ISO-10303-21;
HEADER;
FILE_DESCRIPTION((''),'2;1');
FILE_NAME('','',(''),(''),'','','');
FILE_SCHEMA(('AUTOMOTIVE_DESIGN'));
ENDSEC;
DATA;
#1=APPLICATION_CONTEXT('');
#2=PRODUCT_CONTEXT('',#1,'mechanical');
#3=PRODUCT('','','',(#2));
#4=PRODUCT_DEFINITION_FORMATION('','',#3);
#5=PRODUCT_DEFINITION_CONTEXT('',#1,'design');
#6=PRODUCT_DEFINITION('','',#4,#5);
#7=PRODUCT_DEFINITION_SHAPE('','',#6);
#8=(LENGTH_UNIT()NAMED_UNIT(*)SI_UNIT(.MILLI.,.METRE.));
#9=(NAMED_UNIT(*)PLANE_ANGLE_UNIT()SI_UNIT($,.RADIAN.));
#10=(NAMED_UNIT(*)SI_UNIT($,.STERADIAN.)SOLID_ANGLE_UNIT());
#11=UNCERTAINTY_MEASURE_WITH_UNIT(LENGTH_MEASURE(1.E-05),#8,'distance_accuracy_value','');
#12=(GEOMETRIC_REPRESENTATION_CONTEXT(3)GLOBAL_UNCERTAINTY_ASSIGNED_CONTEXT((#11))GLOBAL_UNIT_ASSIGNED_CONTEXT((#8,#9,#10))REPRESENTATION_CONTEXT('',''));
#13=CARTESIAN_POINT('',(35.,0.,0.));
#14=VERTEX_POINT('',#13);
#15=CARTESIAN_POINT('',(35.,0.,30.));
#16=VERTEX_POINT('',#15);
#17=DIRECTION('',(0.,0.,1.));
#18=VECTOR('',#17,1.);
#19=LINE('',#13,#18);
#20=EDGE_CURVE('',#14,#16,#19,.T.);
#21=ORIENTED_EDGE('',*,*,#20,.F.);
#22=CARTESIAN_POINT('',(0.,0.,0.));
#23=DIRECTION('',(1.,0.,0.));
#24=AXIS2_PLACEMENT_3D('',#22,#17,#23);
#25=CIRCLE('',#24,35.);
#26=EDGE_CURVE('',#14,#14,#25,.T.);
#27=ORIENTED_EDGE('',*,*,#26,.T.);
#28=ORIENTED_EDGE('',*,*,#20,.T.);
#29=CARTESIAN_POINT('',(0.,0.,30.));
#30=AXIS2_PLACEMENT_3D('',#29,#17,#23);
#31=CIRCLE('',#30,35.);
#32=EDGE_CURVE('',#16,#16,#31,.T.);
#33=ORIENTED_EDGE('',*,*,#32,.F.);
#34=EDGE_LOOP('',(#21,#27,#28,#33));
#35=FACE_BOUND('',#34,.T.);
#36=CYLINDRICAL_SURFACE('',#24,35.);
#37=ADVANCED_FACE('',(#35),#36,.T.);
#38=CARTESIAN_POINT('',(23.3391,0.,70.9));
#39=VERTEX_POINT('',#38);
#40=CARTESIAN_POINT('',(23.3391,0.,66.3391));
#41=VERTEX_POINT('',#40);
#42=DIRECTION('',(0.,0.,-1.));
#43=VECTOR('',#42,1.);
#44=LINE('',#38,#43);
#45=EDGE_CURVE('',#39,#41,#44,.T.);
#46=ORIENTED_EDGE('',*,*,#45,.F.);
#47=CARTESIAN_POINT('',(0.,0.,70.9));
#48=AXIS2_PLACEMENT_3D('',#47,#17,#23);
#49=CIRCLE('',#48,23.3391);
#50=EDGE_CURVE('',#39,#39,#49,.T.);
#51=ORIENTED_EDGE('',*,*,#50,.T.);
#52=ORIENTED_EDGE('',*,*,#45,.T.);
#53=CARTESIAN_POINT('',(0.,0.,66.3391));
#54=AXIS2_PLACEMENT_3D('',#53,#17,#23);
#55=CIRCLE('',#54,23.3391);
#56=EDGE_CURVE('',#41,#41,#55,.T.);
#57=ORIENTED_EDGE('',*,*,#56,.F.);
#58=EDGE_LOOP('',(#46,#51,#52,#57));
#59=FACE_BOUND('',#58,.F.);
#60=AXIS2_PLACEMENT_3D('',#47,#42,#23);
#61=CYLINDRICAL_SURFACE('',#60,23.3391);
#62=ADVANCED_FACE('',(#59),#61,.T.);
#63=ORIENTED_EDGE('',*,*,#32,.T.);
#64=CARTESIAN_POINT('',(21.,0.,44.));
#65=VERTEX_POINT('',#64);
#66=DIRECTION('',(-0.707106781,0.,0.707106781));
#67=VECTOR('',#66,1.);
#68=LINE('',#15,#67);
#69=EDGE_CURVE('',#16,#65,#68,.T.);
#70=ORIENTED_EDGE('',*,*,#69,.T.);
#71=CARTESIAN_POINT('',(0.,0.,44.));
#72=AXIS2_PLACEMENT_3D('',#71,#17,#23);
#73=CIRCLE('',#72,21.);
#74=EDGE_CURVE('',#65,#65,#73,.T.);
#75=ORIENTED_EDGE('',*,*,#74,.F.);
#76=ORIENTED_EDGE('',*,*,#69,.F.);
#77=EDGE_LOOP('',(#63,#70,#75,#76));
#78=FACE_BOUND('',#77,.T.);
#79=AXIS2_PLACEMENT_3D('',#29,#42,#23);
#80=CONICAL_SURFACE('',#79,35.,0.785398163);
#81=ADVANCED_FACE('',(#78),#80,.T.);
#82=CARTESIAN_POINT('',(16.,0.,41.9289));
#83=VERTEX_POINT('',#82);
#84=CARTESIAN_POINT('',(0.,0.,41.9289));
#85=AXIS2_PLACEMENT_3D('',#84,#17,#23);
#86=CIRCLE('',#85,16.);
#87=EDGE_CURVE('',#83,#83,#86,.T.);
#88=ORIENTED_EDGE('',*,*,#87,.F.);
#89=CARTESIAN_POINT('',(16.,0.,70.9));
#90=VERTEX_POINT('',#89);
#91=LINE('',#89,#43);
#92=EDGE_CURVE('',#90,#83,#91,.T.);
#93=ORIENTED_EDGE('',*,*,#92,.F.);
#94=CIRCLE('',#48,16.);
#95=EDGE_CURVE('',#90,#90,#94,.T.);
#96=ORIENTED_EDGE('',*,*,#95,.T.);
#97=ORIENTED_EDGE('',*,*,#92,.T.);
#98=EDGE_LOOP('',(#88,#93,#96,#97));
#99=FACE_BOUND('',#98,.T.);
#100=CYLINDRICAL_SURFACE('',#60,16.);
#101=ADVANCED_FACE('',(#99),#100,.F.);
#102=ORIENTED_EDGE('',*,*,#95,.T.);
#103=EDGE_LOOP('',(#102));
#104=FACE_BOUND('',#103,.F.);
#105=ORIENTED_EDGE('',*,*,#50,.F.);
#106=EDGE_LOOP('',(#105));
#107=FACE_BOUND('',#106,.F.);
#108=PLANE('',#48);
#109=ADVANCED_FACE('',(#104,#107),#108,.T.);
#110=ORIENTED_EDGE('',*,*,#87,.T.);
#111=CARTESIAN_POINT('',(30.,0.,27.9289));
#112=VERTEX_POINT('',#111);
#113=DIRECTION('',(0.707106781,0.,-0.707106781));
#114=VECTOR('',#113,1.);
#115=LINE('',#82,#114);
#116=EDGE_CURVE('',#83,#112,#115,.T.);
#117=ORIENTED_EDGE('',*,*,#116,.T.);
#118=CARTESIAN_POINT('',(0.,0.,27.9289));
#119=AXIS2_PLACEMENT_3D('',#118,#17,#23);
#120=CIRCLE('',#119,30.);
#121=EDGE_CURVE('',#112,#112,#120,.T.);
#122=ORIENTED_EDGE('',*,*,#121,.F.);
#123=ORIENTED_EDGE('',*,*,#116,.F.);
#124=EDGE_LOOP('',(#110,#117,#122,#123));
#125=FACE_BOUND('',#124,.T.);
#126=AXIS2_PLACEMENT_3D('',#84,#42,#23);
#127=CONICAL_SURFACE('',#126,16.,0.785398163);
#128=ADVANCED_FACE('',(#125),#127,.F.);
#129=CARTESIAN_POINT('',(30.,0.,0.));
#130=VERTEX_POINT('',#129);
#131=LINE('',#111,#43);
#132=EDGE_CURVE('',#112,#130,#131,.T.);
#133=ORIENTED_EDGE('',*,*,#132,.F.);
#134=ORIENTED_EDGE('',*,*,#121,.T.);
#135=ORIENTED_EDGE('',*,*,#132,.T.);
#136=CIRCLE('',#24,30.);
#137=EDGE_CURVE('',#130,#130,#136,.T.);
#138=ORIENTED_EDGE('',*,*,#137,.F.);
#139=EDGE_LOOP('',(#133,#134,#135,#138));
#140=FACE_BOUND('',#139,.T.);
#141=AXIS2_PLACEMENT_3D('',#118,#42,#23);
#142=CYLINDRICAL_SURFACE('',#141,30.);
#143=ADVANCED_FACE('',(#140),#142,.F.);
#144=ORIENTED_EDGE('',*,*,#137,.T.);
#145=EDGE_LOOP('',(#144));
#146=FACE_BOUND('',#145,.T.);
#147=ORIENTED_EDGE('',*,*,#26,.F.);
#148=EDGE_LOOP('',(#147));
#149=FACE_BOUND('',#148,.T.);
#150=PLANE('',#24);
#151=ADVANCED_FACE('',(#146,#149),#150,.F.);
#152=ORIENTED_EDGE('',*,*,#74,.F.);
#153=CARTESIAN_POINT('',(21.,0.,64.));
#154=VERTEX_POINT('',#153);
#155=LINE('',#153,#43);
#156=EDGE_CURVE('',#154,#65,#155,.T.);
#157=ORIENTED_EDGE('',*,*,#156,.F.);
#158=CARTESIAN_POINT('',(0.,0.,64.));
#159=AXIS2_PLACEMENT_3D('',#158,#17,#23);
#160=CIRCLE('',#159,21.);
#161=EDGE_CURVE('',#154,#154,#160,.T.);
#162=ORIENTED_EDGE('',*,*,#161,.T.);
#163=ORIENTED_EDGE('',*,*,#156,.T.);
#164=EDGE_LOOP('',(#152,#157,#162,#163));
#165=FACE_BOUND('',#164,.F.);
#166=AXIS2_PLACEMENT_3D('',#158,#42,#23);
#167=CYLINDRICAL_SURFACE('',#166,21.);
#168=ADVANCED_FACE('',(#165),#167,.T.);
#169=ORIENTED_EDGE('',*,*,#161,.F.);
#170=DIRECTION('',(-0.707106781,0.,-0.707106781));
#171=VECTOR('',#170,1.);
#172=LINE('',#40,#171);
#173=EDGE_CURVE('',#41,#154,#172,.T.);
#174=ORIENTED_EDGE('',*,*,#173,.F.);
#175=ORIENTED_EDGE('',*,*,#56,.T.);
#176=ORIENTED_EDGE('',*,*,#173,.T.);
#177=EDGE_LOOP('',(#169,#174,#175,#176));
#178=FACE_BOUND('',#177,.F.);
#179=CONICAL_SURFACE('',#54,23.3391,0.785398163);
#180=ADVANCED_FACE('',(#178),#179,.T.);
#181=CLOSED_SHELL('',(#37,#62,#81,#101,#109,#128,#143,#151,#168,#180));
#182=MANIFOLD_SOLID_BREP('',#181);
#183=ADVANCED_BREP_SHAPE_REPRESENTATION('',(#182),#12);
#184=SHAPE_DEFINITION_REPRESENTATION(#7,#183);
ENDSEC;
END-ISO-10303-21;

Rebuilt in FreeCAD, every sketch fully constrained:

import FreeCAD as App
import Part
import Sketcher
Q = App.Units.Quantity

doc = App.newDocument("Part")
params = doc.addObject("Spreadsheet::Sheet", "Params")
for row, (alias, value) in enumerate([
    ("sketch1_width", "5 mm"),
    ("sketch1_height", "30 mm"),
    ("sketch1_height2", "20 mm"),
    ("revolution_angle", "360 deg"),
], start=1):
    params.set(f"A{row}", alias)
    params.set(f"B{row}", "=" + value)
    params.setAlias(f"B{row}", alias)

body = doc.addObject("PartDesign::Body", "Body")

# Sketch on XZ plane
sketch1 = doc.addObject("Sketcher::SketchObject", "Sketch")
body.addObject(sketch1)
sketch1.AttachmentSupport = (doc.XZ_Plane, [""])
sketch1.MapMode = "FlatFace"
sketch1.addGeometry([
    Part.LineSegment(App.Vector(23.3, 66.3, 0), App.Vector(23.3, 70.9, 0)),  # 0
    Part.LineSegment(App.Vector(23.3, 70.9, 0), App.Vector(16, 70.9, 0)),  # 1
    Part.LineSegment(App.Vector(16, 70.9, 0), App.Vector(16, 41.9, 0)),  # 2
    Part.LineSegment(App.Vector(16, 41.9, 0), App.Vector(30, 27.9, 0)),  # 3
    Part.LineSegment(App.Vector(30, 27.9, 0), App.Vector(30, 0, 0)),  # 4
    Part.LineSegment(App.Vector(30, 0, 0), App.Vector(35, 0, 0)),  # 5
    Part.LineSegment(App.Vector(35, 0, 0), App.Vector(35, 30, 0)),  # 6
    Part.LineSegment(App.Vector(35, 30, 0), App.Vector(21, 44, 0)),  # 7
    Part.LineSegment(App.Vector(21, 44, 0), App.Vector(21, 64, 0)),  # 8
    Part.LineSegment(App.Vector(21, 64, 0), App.Vector(23.3, 66.3, 0)),  # 9
], False)
sketch1.addConstraint([
    Sketcher.Constraint("Coincident", 0, 2, 1, 1),
    Sketcher.Constraint("Coincident", 1, 2, 2, 1),
    Sketcher.Constraint("Coincident", 2, 2, 3, 1),
    Sketcher.Constraint("Coincident", 3, 2, 4, 1),
    Sketcher.Constraint("Coincident", 4, 2, 5, 1),
    Sketcher.Constraint("Coincident", 5, 2, 6, 1),
    Sketcher.Constraint("Coincident", 6, 2, 7, 1),
    Sketcher.Constraint("Coincident", 7, 2, 8, 1),
    Sketcher.Constraint("Coincident", 8, 2, 9, 1),
    Sketcher.Constraint("Coincident", 9, 2, 0, 1),
    Sketcher.Constraint("Vertical", 0),
    Sketcher.Constraint("Horizontal", 1),
    Sketcher.Constraint("Vertical", 2),
    Sketcher.Constraint("Vertical", 4),
    Sketcher.Constraint("Horizontal", 5),
    Sketcher.Constraint("Vertical", 6),
    Sketcher.Constraint("Vertical", 8),
    Sketcher.Constraint("PointOnObject", 4, 2, -1),
    Sketcher.Constraint("Parallel", 3, 7),
    Sketcher.Constraint("Perpendicular", 7, 9),
    Sketcher.Constraint("Equal", 3, 7),
    Sketcher.Constraint("DistanceX", 5, 1, 5, 2, 5.0),
    Sketcher.Constraint("DistanceY", 6, 1, 6, 2, 30.0),
    Sketcher.Constraint("DistanceY", 8, 1, 8, 2, 20.0),
    Sketcher.Constraint("Angle", 3, Q("-45 deg")),
    Sketcher.Constraint("DistanceX", -1, 1, 1, 2, 16.0),
    Sketcher.Constraint("DistanceX", -1, 1, 3, 2, 30.0),
    Sketcher.Constraint("DistanceY", -1, 1, 0, 2, 70.9),
    Sketcher.Constraint("DistanceX", 1, 2, 1, 1, 7.339),
    Sketcher.Constraint("DistanceY", 2, 2, 2, 1, 28.971),
])
sketch1.setExpression("Constraints[21]", "Params.sketch1_width")
sketch1.setExpression("Constraints[22]", "Params.sketch1_height")
sketch1.setExpression("Constraints[23]", "Params.sketch1_height2")
revolution = doc.addObject("PartDesign::Revolution", "Revolution")
body.addObject(revolution)
revolution.Profile = sketch1
revolution.ReferenceAxis = (sketch1, ["V_Axis"])
revolution.setExpression("Angle", "Params.revolution_angle")

doc.recompute()
